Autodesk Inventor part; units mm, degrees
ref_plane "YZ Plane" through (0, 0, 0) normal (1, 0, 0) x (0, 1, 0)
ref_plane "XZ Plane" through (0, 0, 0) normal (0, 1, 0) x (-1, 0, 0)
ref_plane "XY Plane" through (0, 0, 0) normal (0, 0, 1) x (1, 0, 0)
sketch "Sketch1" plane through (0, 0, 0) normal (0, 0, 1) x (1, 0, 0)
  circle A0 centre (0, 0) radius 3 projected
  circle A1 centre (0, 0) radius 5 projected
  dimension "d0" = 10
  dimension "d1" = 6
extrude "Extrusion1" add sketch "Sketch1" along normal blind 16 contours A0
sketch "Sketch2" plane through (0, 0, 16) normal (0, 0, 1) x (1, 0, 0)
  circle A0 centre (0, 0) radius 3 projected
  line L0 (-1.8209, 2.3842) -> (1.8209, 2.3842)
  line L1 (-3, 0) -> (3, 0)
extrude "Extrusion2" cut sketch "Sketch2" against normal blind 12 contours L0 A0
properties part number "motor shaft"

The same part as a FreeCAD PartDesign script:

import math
import FreeCAD as App
import Part
import Sketcher

V = App.Vector

doc = App.newDocument("Part")
body = doc.addObject("PartDesign::Body", "Body")

# Sketch on XY plane
sketch1 = doc.addObject("Sketcher::SketchObject", "Sketch")
body.addObject(sketch1)
sketch1.AttachmentSupport = (doc.XY_Plane, [""])
sketch1.MapMode = "FlatFace"
sketch1.addGeometry(Part.Circle(V(0, 0, 0), V(0, 0, 1), 3), False)
sketch1.addConstraint([
    Sketcher.Constraint("Coincident", 0, 3, -1, 1),
    Sketcher.Constraint("Diameter", 0, 6.0),
])
pad1 = doc.addObject("PartDesign::Pad", "Pad")
body.addObject(pad1)
pad1.Profile = sketch1
pad1.Length = 16

# Sketch on XY plane
sketch2 = doc.addObject("Sketcher::SketchObject", "Sketch001")
body.addObject(sketch2)
sketch2.AttachmentSupport = (doc.XY_Plane, [""])
sketch2.MapMode = "FlatFace"
sketch2.AttachmentOffset = App.Placement(V(0, 0, 16), App.Rotation())
sketch2.addGeometry([
    Part.LineSegment(V(-1.8, 2.4, 0), V(1.8, 2.4, 0)),
    Part.ArcOfCircle(Part.Circle(V(0, 0, 0), V(0, 0, 1), 3), math.radians(53), math.radians(127)),
], False)
sketch2.addConstraint([
    Sketcher.Constraint("Coincident", 0, 1, 1, 2),
    Sketcher.Constraint("Coincident", 1, 1, 0, 2),
    Sketcher.Constraint("Horizontal", 0),
    Sketcher.Constraint("Coincident", 1, 3, -1, 1),
    Sketcher.Constraint("Radius", 1, 3.0),
    Sketcher.Constraint("DistanceX", 0, 1, 0, 2, 3.6418),
])
pocket1 = doc.addObject("PartDesign::Pocket", "Pocket")
body.addObject(pocket1)
pocket1.Profile = sketch2
pocket1.Length = 12

doc.recompute()
